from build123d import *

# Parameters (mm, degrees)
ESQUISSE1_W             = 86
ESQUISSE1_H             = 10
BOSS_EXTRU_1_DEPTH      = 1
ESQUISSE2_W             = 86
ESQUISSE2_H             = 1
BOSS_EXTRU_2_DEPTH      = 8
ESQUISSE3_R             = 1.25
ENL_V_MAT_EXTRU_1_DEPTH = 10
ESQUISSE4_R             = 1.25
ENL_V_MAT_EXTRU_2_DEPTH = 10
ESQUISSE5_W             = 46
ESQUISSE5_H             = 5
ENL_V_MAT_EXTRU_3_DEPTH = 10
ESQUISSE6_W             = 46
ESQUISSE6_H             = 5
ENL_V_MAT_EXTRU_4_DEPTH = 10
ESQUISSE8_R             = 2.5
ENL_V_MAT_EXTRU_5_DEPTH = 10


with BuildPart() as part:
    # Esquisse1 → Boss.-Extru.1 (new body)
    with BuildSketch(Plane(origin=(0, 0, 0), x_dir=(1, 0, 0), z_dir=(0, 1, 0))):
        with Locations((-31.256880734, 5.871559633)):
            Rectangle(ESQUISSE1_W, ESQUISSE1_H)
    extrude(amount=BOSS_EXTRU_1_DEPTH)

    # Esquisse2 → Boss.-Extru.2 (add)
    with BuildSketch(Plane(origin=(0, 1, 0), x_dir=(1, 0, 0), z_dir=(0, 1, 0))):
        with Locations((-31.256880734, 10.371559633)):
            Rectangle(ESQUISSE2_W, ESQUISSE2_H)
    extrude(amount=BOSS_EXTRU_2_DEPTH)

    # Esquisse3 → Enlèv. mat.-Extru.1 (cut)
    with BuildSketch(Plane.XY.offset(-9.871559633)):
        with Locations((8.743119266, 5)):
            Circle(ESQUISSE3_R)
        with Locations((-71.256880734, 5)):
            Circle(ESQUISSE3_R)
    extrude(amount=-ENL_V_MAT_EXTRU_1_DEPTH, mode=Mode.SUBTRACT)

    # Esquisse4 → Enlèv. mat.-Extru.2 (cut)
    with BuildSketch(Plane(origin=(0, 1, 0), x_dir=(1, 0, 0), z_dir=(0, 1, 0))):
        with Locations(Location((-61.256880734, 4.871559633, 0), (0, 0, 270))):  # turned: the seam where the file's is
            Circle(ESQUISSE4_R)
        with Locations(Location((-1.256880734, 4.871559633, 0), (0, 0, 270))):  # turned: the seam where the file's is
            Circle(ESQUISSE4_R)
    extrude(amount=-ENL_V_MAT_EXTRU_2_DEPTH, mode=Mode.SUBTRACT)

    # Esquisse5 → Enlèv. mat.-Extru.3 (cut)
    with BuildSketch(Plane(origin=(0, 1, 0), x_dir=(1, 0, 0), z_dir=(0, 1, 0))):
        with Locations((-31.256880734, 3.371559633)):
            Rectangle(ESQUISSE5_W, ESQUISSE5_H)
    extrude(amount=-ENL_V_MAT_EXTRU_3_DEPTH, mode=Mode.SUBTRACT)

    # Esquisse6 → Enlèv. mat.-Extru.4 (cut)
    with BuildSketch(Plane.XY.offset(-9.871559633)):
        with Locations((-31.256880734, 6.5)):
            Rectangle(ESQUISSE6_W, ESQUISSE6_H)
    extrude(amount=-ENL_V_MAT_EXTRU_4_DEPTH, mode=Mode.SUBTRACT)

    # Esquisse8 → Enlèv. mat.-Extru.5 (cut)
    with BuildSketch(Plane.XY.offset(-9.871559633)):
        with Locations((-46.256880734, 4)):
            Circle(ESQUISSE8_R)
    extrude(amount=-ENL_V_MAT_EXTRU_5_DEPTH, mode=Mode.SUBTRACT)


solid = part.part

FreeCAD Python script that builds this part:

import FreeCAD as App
import Part
import Sketcher

V = App.Vector


def add_polygon(sketch, points):
    """Adds a closed chain of lines whose ends are joined by coincident constraints."""
    first, n = sketch.GeometryCount, len(points)
    for a, b in zip(points, points[1:] + points[:1]):
        sketch.addGeometry(Part.LineSegment(App.Vector(*a, 0), App.Vector(*b, 0)), False)
    for i in range(n):
        sketch.addConstraint(Sketcher.Constraint("Coincident", first + i, 2, first + (i + 1) % n, 1))

doc = App.newDocument("Part")
params = doc.addObject("Spreadsheet::Sheet", "Params")
for row, (alias, value) in enumerate([
    ("sketch1_width", "86 mm"),
    ("sketch1_height", "10 mm"),
    ("pad1_length", "1 mm"),
    ("sketch2_width", "86 mm"),
    ("sketch2_height", "1 mm"),
    ("pad2_length", "8 mm"),
    ("sketch3_diameter", "2.5 mm"),
    ("pocket1_length", "10 mm"),
    ("sketch4_diameter", "2.5 mm"),
    ("pocket2_length", "10 mm"),
    ("sketch5_width", "46 mm"),
    ("sketch5_height", "5 mm"),
    ("pocket3_length", "10 mm"),
    ("sketch6_width", "46 mm"),
    ("sketch6_height", "5 mm"),
    ("pocket4_length", "10 mm"),
    ("sketch7_diameter", "5 mm"),
    ("pocket5_length", "10 mm"),
], start=1):
    params.set(f"A{row}", alias)
    params.set(f"B{row}", "=" + value)
    params.setAlias(f"B{row}", alias)

body = doc.addObject("PartDesign::Body", "Body")

# Sketch on XZ plane
sketch1 = body.newObject("Sketcher::SketchObject", "Sketch")
sketch1.AttachmentSupport = (doc.getObject("XZ_Plane"), [""])
sketch1.MapMode = "FlatFace"
add_polygon(sketch1, [(-74, -11), (-74, -1), (12, -1), (12, -11)])  # lines 0-3
sketch1.addConstraint([
    Sketcher.Constraint("Vertical", 0),
    Sketcher.Constraint("Horizontal", 1),
    Sketcher.Constraint("Vertical", 2),
    Sketcher.Constraint("Horizontal", 3),
    Sketcher.Constraint("DistanceX", 1, 1, 1, 2, 86.0),
    Sketcher.Constraint("DistanceY", 0, 1, 0, 2, 10.0),
    Sketcher.Constraint("DistanceX", 0, 2, -1, 1, 74.256881),
    Sketcher.Constraint("DistanceY", 0, 2, -1, 1, 0.87156),
])
sketch1.setExpression("Constraints[8]", "Params.sketch1_width")
sketch1.setExpression("Constraints[9]", "Params.sketch1_height")
pad1 = body.newObject("PartDesign::Pad", "Pad")
pad1.Profile = sketch1
pad1.setExpression("Length", "Params.pad1_length")
pad1.Reversed = True

# Sketch on XZ plane
sketch2 = body.newObject("Sketcher::SketchObject", "Sketch001")
sketch2.AttachmentSupport = (doc.getObject("XZ_Plane"), [""])
sketch2.MapMode = "FlatFace"
sketch2.AttachmentOffset = App.Placement(V(0, 0, -1), App.Rotation())
add_polygon(sketch2, [(-74.3, -10.9), (-74.3, -9.9), (11.7, -9.9), (11.7, -10.9)])  # lines 0-3
sketch2.addConstraint([
    Sketcher.Constraint("Vertical", 0),
    Sketcher.Constraint("Horizontal", 1),
    Sketcher.Constraint("Vertical", 2),
    Sketcher.Constraint("Horizontal", 3),
    Sketcher.Constraint("DistanceX", 1, 1, 1, 2, 86.0),
    Sketcher.Constraint("DistanceY", 0, 1, 0, 2, 1.0),
    Sketcher.Constraint("DistanceX", 0, 2, -1, 1, 74.256881),
    Sketcher.Constraint("DistanceY", 0, 2, -1, 1, 9.87156),
])
sketch2.setExpression("Constraints[8]", "Params.sketch2_width")
sketch2.setExpression("Constraints[9]", "Params.sketch2_height")
pad2 = body.newObject("PartDesign::Pad", "Pad001")
pad2.Profile = sketch2
pad2.setExpression("Length", "Params.pad2_length")
pad2.Reversed = True

# Sketch on XY plane
sketch3 = body.newObject("Sketcher::SketchObject", "Sketch002")
sketch3.AttachmentSupport = (doc.getObject("XY_Plane"), [""])
sketch3.MapMode = "FlatFace"
sketch3.AttachmentOffset = App.Placement(V(0, 0, -9.87156), App.Rotation())
sketch3.addGeometry([
    Part.Circle(V(8.7, 5, 0), V(0, 0, 1), 1.2),
    Part.Circle(V(-71.3, 5, 0), V(0, 0, 1), 1.2),
], False)
sketch3.addConstraint([
    Sketcher.Constraint("Equal", 0, 1),
    Sketcher.Constraint("Horizontal", 0, 3, 1, 3),
    Sketcher.Constraint("Diameter", 0, 2.5),
    Sketcher.Constraint("DistanceY", -1, 1, 0, 3, 5.0),
    Sketcher.Constraint("DistanceX", 1, 3, 0, 3, 80.0),
    Sketcher.Constraint("DistanceX", -1, 1, 0, 3, 8.743119),
])
sketch3.setExpression("Constraints[2]", "Params.sketch3_diameter")
pocket1 = body.newObject("PartDesign::Pocket", "Pocket")
pocket1.Profile = sketch3
pocket1.setExpression("Length", "Params.pocket1_length")

# Sketch on XZ plane
sketch4 = body.newObject("Sketcher::SketchObject", "Sketch003")
sketch4.AttachmentSupport = (doc.getObject("XZ_Plane"), [""])
sketch4.MapMode = "FlatFace"
sketch4.AttachmentOffset = App.Placement(V(0, 0, -1), App.Rotation())
sketch4.addGeometry([
    Part.Circle(V(-61.3, -4.9, 0), V(0, 0, 1), 1.2),
    Part.Circle(V(-1.3, -4.9, 0), V(0, 0, 1), 1.2),
], False)
sketch4.addConstraint([
    Sketcher.Constraint("Equal", 0, 1),
    Sketcher.Constraint("Horizontal", 0, 3, 1, 3),
    Sketcher.Constraint("Diameter", 0, 2.5),
    Sketcher.Constraint("DistanceX", 0, 3, 1, 3, 60.0),
    Sketcher.Constraint("DistanceX", 0, 3, -1, 1, 61.256881),
    Sketcher.Constraint("DistanceY", 0, 3, -1, 1, 4.87156),
])
sketch4.setExpression("Constraints[2]", "Params.sketch4_diameter")
pocket2 = body.newObject("PartDesign::Pocket", "Pocket001")
pocket2.Profile = sketch4
pocket2.setExpression("Length", "Params.pocket2_length")
pocket2.Reversed = True

# Sketch on XZ plane
sketch5 = body.newObject("Sketcher::SketchObject", "Sketch004")
sketch5.AttachmentSupport = (doc.getObject("XZ_Plane"), [""])
sketch5.MapMode = "FlatFace"
sketch5.AttachmentOffset = App.Placement(V(0, 0, -1), App.Rotation())
add_polygon(sketch5, [(-54, -6), (-54, -1), (-8, -1), (-8, -6)])  # lines 0-3
sketch5.addConstraint([
    Sketcher.Constraint("Vertical", 0),
    Sketcher.Constraint("Horizontal", 1),
    Sketcher.Constraint("Vertical", 2),
    Sketcher.Constraint("Horizontal", 3),
    Sketcher.Constraint("DistanceX", 1, 1, 1, 2, 46.0),
    Sketcher.Constraint("DistanceY", 0, 1, 0, 2, 5.0),
    Sketcher.Constraint("DistanceX", 0, 2, -1, 1, 54.256881),
    Sketcher.Constraint("DistanceY", 0, 2, -1, 1, 0.87156),
])
sketch5.setExpression("Constraints[8]", "Params.sketch5_width")
sketch5.setExpression("Constraints[9]", "Params.sketch5_height")
pocket3 = body.newObject("PartDesign::Pocket", "Pocket002")
pocket3.Profile = sketch5
pocket3.setExpression("Length", "Params.pocket3_length")
pocket3.Reversed = True

# Sketch on XY plane
sketch6 = body.newObject("Sketcher::SketchObject", "Sketch005")
sketch6.AttachmentSupport = (doc.getObject("XY_Plane"), [""])
sketch6.MapMode = "FlatFace"
sketch6.AttachmentOffset = App.Placement(V(0, 0, -9.87156), App.Rotation())
add_polygon(sketch6, [(-54, 9), (-54, 4), (-8, 4), (-8, 9)])  # lines 0-3
sketch6.addConstraint([
    Sketcher.Constraint("Vertical", 0),
    Sketcher.Constraint("Horizontal", 1),
    Sketcher.Constraint("Vertical", 2),
    Sketcher.Constraint("Horizontal", 3),
    Sketcher.Constraint("DistanceX", 1, 1, 1, 2, 46.0),
    Sketcher.Constraint("DistanceY", 0, 2, 0, 1, 5.0),
    Sketcher.Constraint("DistanceY", -1, 1, 0, 2, 4.0),
    Sketcher.Constraint("DistanceX", 0, 2, -1, 1, 54.256881),
])
sketch6.setExpression("Constraints[8]", "Params.sketch6_width")
sketch6.setExpression("Constraints[9]", "Params.sketch6_height")
pocket4 = body.newObject("PartDesign::Pocket", "Pocket003")
pocket4.Profile = sketch6
pocket4.setExpression("Length", "Params.pocket4_length")

# Sketch on XY plane
sketch7 = body.newObject("Sketcher::SketchObject", "Sketch006")
sketch7.AttachmentSupport = (doc.getObject("XY_Plane"), [""])
sketch7.MapMode = "FlatFace"
sketch7.AttachmentOffset = App.Placement(V(0, 0, -9.87156), App.Rotation())
sketch7.addGeometry(Part.Circle(V(-46.3, 4, 0), V(0, 0, 1), 2.5), False)
sketch7.addConstraint([
    Sketcher.Constraint("Diameter", 0, 5.0),
    Sketcher.Constraint("DistanceY", -1, 1, 0, 3, 4.0),
    Sketcher.Constraint("DistanceX", 0, 3, -1, 1, 46.256881),
])
sketch7.setExpression("Constraints[0]", "Params.sketch7_diameter")
pocket5 = body.newObject("PartDesign::Pocket", "Pocket004")
pocket5.Profile = sketch7
pocket5.setExpression("Length", "Params.pocket5_length")

doc.recompute()
